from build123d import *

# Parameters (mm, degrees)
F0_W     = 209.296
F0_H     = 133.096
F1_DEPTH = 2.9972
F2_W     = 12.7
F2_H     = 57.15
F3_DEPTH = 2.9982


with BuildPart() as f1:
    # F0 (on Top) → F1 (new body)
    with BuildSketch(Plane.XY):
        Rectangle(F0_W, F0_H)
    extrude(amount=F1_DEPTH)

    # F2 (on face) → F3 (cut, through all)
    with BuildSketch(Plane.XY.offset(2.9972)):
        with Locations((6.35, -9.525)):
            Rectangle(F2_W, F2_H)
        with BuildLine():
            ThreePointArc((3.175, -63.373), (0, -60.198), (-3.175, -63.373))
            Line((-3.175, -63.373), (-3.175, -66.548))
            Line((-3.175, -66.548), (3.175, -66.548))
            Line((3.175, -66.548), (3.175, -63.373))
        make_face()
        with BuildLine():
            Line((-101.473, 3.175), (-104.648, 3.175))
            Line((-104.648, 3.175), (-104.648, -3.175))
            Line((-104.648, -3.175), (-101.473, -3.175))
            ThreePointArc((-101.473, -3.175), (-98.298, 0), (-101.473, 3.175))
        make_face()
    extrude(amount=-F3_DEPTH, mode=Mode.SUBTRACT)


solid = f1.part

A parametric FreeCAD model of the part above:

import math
import FreeCAD as App
import Part
import Sketcher

V = App.Vector
Q = App.Units.Quantity


def add_polygon(sketch, points):
    """Adds a closed chain of lines whose ends are joined by coincident constraints."""
    first, n = sketch.GeometryCount, len(points)
    for a, b in zip(points, points[1:] + points[:1]):
        sketch.addGeometry(Part.LineSegment(App.Vector(*a, 0), App.Vector(*b, 0)), False)
    for i in range(n):
        sketch.addConstraint(Sketcher.Constraint("Coincident", first + i, 2, first + (i + 1) % n, 1))

doc = App.newDocument("Part")
body = doc.addObject("PartDesign::Body", "Body")

# Sketch on XY plane
sketch1 = body.newObject("Sketcher::SketchObject", "Sketch")
sketch1.AttachmentSupport = (doc.getObject("XY_Plane"), [""])
sketch1.MapMode = "FlatFace"
add_polygon(sketch1, [(-105, 67), (-105, -67), (105, -67), (105, 67)])  # lines 0-3
sketch1.addConstraint([
    Sketcher.Constraint("Vertical", 0),
    Sketcher.Constraint("Horizontal", 1),
    Sketcher.Constraint("Vertical", 2),
    Sketcher.Constraint("Horizontal", 3),
    Sketcher.Constraint("Symmetric", 0, 2, 2, 2, -1, 1),
    Sketcher.Constraint("DistanceX", 1, 1, 1, 2, Q("8.24 in")),
    Sketcher.Constraint("DistanceY", 0, 2, 0, 1, Q("5.24 in")),
])
pad1 = body.newObject("PartDesign::Pad", "Pad")
pad1.Profile = sketch1
pad1.Length = Q("0.118 in")

# Sketch on XY plane
sketch2 = body.newObject("Sketcher::SketchObject", "Sketch001")
sketch2.AttachmentSupport = (doc.getObject("XY_Plane"), [""])
sketch2.MapMode = "FlatFace"
sketch2.AttachmentOffset = App.Placement(V(0, 0, 0.118 * 25.4), App.Rotation())
add_polygon(sketch2, [(0, 19.1), (0, -38.1), (12.7, -38.1), (12.7, 19.1)])  # lines 0-3
sketch2.addGeometry(Part.ArcOfCircle(Part.Circle(V(0, -63.4, 0), V(0, 0, 1), 3.2), math.radians(0), math.radians(180)), False)  # 4
sketch2.addGeometry(Part.LineSegment(V(-3.2, -63.4, 0), V(-3.2, -66.5, 0)), False)  # 5
sketch2.addGeometry(Part.LineSegment(V(-3.2, -66.5, 0), V(3.2, -66.5, 0)), False)  # 6
sketch2.addGeometry(Part.LineSegment(V(3.2, -66.5, 0), V(3.2, -63.4, 0)), False)  # 7
sketch2.addGeometry(Part.LineSegment(V(-101.5, 3.2, 0), V(-104.6, 3.2, 0)), False)  # 8
sketch2.addGeometry(Part.LineSegment(V(-104.6, 3.2, 0), V(-104.6, -3.2, 0)), False)  # 9
sketch2.addGeometry(Part.LineSegment(V(-104.6, -3.2, 0), V(-101.5, -3.2, 0)), False)  # 10
sketch2.addGeometry(Part.ArcOfCircle(Part.Circle(V(-101.5, 0, 0), V(0, 0, 1), 3.2), math.radians(-90), math.radians(90)), False)  # 11
sketch2.addConstraint([
    Sketcher.Constraint("Tangent", 4, 2, 5, 1),
    Sketcher.Constraint("Coincident", 5, 2, 6, 1),
    Sketcher.Constraint("Coincident", 6, 2, 7, 1),
    Sketcher.Constraint("Tangent", 7, 2, 4, 1),
    Sketcher.Constraint("Coincident", 8, 2, 9, 1),
    Sketcher.Constraint("Coincident", 9, 2, 10, 1),
    Sketcher.Constraint("Tangent", 10, 2, 11, 1),
    Sketcher.Constraint("Tangent", 11, 2, 8, 1),
    Sketcher.Constraint("Vertical", 0),
    Sketcher.Constraint("Horizontal", 1),
    Sketcher.Constraint("Vertical", 2),
    Sketcher.Constraint("Horizontal", 3),
    Sketcher.Constraint("Vertical", 5),
    Sketcher.Constraint("Horizontal", 6),
    Sketcher.Constraint("Vertical", 7),
    Sketcher.Constraint("Horizontal", 8),
    Sketcher.Constraint("Vertical", 9),
    Sketcher.Constraint("Horizontal", 10),
    Sketcher.Constraint("Equal", 4, 11),
    Sketcher.Constraint("PointOnObject", 4, 3, -2),
    Sketcher.Constraint("PointOnObject", 11, 3, -1),
    Sketcher.Constraint("PointOnObject", 0, 2, -2),
    Sketcher.Constraint("Equal", 10, 5),
    Sketcher.Constraint("DistanceX", 1, 1, 1, 2, Q("0.5 in")),
    Sketcher.Constraint("Radius", 4, Q("0.125 in")),
    Sketcher.Constraint("DistanceY", 0, 2, 0, 1, Q("2.25 in")),
    Sketcher.Constraint("DistanceY", 0, 2, -1, 1, Q("1.5 in")),
    Sketcher.Constraint("DistanceX", 8, 2, 8, 1, Q("0.125 in")),
    Sketcher.Constraint("DistanceY", 5, 2, -1, 1, Q("2.62 in")),
    Sketcher.Constraint("DistanceX", 8, 2, -1, 1, Q("4.12 in")),
])
pocket1 = body.newObject("PartDesign::Pocket", "Pocket")
pocket1.Profile = sketch2
pocket1.Type = "ThroughAll"

doc.recompute()
